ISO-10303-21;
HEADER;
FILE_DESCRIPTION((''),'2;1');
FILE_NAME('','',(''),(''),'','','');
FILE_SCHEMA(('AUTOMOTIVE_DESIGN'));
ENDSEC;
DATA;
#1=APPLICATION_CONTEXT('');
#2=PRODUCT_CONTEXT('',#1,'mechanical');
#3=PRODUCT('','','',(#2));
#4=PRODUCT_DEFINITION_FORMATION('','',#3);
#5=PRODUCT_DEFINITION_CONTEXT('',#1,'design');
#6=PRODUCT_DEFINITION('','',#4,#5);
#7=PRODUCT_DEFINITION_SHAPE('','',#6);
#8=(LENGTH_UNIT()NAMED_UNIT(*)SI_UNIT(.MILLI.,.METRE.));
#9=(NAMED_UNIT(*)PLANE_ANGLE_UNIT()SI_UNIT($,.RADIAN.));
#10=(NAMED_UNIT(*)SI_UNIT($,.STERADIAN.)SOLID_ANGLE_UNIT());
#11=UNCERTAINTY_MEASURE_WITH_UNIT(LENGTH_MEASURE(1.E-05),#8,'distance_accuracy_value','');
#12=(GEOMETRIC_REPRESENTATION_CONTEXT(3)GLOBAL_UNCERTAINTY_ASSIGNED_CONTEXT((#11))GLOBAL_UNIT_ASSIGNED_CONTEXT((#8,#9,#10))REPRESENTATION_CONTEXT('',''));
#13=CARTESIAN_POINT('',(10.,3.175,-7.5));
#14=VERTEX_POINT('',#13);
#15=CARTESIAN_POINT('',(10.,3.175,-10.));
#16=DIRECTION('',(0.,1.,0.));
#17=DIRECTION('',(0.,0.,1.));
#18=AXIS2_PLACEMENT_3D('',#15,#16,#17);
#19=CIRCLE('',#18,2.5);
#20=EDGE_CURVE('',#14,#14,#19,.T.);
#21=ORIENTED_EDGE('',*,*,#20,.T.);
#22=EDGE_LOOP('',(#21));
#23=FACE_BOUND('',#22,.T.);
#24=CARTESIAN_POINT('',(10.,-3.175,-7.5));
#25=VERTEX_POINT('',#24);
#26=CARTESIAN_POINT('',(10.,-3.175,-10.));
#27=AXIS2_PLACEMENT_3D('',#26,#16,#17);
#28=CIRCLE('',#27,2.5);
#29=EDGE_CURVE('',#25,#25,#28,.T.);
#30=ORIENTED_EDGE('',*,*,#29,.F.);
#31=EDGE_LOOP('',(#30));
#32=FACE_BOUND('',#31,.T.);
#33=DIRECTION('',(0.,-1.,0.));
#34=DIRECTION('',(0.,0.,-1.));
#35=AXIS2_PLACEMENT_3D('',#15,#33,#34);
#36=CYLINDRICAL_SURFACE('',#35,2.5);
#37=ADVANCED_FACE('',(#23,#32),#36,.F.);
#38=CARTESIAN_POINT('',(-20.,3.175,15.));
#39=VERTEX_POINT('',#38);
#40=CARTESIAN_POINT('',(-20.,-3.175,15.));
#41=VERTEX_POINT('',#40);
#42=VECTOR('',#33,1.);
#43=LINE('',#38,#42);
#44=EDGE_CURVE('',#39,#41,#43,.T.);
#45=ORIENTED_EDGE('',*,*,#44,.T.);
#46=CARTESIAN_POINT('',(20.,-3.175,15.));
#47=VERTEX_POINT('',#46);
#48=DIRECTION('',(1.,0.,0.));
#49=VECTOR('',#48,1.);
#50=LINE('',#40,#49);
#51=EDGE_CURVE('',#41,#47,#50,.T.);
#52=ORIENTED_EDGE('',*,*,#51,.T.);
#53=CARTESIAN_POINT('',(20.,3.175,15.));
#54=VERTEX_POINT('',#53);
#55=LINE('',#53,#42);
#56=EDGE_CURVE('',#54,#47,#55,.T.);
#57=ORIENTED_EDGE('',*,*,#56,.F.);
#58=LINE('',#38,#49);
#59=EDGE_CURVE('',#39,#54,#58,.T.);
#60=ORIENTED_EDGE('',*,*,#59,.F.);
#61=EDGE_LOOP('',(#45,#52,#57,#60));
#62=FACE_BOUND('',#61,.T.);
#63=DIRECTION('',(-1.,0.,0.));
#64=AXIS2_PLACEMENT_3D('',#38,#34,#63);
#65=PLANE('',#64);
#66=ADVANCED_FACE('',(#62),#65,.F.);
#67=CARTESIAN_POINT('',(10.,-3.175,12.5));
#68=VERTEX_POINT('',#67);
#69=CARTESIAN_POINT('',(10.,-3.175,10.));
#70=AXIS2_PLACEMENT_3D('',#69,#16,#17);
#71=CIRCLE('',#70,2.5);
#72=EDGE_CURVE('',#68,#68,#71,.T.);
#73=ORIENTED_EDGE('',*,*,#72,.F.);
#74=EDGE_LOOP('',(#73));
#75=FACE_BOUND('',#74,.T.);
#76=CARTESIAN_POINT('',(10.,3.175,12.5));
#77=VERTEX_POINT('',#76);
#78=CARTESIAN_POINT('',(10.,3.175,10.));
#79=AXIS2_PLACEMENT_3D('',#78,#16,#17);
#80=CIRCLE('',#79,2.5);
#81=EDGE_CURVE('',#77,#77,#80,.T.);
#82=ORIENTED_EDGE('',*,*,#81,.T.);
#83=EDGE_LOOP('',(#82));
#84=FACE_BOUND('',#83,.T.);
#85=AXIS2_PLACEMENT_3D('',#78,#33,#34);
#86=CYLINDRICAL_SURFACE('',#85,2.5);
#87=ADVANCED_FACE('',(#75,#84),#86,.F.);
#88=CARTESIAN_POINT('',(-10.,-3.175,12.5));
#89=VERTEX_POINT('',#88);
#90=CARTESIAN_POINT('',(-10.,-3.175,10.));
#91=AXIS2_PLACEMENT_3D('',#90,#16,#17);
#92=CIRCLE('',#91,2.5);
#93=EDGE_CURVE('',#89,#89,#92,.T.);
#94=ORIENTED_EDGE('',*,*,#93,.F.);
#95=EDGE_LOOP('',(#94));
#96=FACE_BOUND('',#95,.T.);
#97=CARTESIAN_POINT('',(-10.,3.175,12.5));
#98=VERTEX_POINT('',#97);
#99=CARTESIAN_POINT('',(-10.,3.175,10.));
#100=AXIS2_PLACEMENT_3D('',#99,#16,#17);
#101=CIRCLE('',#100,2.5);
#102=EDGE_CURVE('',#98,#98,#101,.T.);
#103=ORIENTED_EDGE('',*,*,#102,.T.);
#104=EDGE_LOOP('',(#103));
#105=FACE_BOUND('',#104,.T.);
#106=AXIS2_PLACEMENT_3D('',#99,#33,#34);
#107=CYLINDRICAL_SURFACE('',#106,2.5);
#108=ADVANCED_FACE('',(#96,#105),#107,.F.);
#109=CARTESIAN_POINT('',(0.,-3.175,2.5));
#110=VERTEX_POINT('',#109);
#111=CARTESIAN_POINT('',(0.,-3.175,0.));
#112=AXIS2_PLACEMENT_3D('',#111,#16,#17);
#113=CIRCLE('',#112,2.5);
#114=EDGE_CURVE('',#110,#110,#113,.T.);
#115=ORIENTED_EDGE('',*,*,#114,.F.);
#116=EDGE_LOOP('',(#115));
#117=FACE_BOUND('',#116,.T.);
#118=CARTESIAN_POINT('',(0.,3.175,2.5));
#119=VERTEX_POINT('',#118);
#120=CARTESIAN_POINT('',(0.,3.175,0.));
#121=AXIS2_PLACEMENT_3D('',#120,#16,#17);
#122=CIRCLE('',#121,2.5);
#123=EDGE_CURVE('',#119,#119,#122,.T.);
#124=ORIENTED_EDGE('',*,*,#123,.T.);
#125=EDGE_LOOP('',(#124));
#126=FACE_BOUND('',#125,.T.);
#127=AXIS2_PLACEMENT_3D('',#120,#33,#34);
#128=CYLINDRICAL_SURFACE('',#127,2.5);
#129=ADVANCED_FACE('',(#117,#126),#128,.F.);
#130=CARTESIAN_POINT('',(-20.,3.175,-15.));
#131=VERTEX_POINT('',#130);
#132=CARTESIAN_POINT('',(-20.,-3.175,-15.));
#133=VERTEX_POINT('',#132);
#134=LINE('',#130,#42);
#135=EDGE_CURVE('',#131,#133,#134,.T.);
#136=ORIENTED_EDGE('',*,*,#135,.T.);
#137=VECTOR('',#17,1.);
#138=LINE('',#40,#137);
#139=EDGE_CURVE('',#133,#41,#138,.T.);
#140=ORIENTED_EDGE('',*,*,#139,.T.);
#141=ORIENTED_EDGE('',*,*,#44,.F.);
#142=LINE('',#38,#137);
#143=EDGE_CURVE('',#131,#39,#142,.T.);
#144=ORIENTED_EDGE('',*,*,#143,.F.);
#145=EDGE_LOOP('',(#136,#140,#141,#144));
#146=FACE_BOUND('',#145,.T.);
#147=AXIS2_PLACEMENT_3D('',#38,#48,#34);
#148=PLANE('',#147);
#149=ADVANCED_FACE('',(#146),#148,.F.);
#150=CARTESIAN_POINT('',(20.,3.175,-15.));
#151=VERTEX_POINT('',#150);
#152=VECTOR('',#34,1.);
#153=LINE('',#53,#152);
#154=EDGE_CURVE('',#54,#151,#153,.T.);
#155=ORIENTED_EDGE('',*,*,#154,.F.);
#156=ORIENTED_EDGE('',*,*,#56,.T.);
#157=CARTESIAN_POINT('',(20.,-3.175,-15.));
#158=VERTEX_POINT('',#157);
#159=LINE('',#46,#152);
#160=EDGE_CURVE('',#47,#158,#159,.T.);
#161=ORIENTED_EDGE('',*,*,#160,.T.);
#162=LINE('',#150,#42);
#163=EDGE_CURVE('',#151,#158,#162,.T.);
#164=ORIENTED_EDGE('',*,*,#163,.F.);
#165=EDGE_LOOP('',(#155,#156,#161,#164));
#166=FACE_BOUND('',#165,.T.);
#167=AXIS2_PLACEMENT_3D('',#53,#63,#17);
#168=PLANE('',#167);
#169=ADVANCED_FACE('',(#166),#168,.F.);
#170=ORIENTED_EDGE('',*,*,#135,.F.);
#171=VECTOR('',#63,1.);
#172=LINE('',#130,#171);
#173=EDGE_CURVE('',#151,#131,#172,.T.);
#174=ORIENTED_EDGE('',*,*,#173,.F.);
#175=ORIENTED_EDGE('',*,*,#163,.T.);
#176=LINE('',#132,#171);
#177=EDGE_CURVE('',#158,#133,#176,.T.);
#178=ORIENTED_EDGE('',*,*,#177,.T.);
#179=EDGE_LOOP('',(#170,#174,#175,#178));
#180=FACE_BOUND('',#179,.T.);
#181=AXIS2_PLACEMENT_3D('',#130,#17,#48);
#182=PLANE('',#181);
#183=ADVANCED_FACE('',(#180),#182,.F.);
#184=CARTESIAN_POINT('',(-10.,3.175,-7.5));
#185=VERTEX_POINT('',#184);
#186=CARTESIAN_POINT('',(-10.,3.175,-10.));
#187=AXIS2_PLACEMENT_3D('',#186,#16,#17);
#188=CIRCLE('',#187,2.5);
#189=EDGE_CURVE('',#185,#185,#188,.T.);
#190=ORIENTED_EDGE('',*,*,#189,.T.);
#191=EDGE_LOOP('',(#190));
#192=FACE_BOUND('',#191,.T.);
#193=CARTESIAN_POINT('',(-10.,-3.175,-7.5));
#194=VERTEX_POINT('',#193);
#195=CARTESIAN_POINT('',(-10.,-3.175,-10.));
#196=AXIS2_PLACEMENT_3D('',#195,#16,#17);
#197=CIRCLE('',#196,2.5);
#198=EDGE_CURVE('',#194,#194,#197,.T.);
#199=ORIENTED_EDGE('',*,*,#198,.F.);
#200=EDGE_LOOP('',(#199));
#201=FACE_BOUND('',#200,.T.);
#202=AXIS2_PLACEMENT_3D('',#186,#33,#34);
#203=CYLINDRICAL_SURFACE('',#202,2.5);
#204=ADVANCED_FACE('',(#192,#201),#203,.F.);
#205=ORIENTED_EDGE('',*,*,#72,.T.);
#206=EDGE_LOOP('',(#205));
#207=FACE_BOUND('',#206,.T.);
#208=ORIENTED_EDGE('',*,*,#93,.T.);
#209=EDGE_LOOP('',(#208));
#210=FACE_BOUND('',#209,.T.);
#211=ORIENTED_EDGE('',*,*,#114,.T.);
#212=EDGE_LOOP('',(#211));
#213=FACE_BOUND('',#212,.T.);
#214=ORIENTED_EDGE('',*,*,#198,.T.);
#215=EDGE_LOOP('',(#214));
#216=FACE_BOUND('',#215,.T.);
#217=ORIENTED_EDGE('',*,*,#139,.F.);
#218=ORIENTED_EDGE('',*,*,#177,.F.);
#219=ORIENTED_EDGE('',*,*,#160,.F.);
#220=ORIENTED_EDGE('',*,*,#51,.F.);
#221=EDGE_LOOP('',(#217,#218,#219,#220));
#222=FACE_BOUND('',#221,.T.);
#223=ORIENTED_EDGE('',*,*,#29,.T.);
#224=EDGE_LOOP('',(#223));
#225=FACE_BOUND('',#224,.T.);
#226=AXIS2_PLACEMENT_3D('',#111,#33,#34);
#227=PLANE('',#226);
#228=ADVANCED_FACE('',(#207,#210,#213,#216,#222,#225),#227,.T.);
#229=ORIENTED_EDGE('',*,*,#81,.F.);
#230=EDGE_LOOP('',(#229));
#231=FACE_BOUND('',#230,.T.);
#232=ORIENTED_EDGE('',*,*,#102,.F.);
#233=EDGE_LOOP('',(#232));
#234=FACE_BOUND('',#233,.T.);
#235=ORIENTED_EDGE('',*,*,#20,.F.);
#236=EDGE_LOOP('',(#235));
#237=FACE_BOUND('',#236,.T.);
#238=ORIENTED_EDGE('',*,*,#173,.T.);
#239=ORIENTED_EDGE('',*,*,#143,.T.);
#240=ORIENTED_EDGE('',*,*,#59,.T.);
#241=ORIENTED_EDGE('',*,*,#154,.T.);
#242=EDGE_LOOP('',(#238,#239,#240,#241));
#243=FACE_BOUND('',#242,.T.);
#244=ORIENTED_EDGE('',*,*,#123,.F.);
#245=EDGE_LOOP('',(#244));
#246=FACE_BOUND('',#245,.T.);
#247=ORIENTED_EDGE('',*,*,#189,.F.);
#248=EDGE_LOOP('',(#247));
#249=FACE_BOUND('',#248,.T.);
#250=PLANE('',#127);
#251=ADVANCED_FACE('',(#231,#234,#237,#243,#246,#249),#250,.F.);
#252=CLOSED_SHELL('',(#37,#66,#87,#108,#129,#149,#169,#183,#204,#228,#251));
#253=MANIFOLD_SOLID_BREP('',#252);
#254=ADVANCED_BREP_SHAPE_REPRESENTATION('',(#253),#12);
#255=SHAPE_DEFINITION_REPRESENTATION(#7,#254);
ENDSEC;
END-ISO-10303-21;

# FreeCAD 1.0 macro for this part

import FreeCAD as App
import Part
import Sketcher
Q = App.Units.Quantity

doc = App.newDocument("Part")
body = doc.addObject("PartDesign::Body", "Body")

# Sketch on XZ plane
sketch1 = body.newObject("Sketcher::SketchObject", "Sketch")
sketch1.AttachmentSupport = (doc.getObject("XZ_Plane"), [""])
sketch1.MapMode = "FlatFace"
sketch1.addGeometry([
    Part.LineSegment(App.Vector(-20, -15, 0), App.Vector(-20, 15, 0)),  # 0
    Part.LineSegment(App.Vector(-20, 15, 0), App.Vector(20, 15, 0)),  # 1
    Part.LineSegment(App.Vector(20, 15, 0), App.Vector(20, -15, 0)),  # 2
    Part.LineSegment(App.Vector(20, -15, 0), App.Vector(-20, -15, 0)),  # 3
    Part.Circle(App.Vector(-10, 10, 0), App.Vector(0, 0, 1), 2.5),  # 4
    Part.Circle(App.Vector(10, 10, 0), App.Vector(0, 0, 1), 2.5),  # 5
    Part.Circle(App.Vector(-10, -10, 0), App.Vector(0, 0, 1), 2.5),  # 6
    Part.Circle(App.Vector(0, 0, 0), App.Vector(0, 0, 1), 2.5),  # 7
    Part.Circle(App.Vector(10, -10, 0), App.Vector(0, 0, 1), 2.5),  # 8
], False)
sketch1.addConstraint([
    Sketcher.Constraint("Coincident", 0, 2, 1, 1),
    Sketcher.Constraint("Coincident", 1, 2, 2, 1),
    Sketcher.Constraint("Coincident", 2, 2, 3, 1),
    Sketcher.Constraint("Coincident", 3, 2, 0, 1),
    Sketcher.Constraint("Vertical", 0),
    Sketcher.Constraint("Horizontal", 1),
    Sketcher.Constraint("Vertical", 2),
    Sketcher.Constraint("Horizontal", 3),
    Sketcher.Constraint("Coincident", 7, 3, -1, 1),
    Sketcher.Constraint("Equal", 4, 5),
    Sketcher.Constraint("Equal", 5, 6),
    Sketcher.Constraint("Equal", 6, 7),
    Sketcher.Constraint("Equal", 7, 8),
    Sketcher.Constraint("Symmetric", 5, 3, 6, 3, -1, 1),
    Sketcher.Constraint("Symmetric", 4, 3, 8, 3, -1, 1),
    Sketcher.Constraint("Symmetric", 0, 2, 2, 2, -1, 1),
    Sketcher.Constraint("Symmetric", 4, 3, 5, 3, -2),
    Sketcher.Constraint("Diameter", 4, Q("5 mm")),
    Sketcher.Constraint("DistanceX", 1, 1, 1, 2, Q("40 mm")),
    Sketcher.Constraint("DistanceY", 0, 1, 0, 2, Q("30 mm")),
    Sketcher.Constraint("DistanceX", 4, 3, -1, 1, Q("10 mm")),
    Sketcher.Constraint("DistanceY", -1, 1, 4, 3, Q("10 mm")),
])
pad1 = body.newObject("PartDesign::Pad", "Pad")
pad1.Profile = sketch1
pad1.Length = 6.35
pad1.Midplane = True

doc.recompute()
